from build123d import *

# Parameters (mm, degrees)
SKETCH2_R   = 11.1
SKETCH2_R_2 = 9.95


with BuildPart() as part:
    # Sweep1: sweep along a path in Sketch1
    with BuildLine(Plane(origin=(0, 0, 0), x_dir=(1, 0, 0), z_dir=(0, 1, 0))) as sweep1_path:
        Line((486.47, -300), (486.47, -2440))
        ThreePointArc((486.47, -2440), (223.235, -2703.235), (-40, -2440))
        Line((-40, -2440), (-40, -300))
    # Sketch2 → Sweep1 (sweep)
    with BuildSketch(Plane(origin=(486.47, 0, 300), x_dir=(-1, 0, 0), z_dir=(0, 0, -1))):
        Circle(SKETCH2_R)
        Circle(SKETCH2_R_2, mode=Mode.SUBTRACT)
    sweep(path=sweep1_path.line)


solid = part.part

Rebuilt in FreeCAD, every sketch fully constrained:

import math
import FreeCAD as App
import Part
import Sketcher

V = App.Vector
Q = App.Units.Quantity

doc = App.newDocument("Part")
params = doc.addObject("Spreadsheet::Sheet", "Params")
for row, (alias, value) in enumerate([
    ("sketch1_diameter", "22.2 mm"),
    ("sketch1_diameter2", "19.9 mm"),
    ("sketch2_height", "2140 mm"),
], start=1):
    params.set(f"A{row}", alias)
    params.set(f"B{row}", "=" + value)
    params.setAlias(f"B{row}", alias)

body = doc.addObject("PartDesign::Body", "Body")

# Sketch on XY plane
sketch1 = doc.addObject("Sketcher::SketchObject", "Sketch")
body.addObject(sketch1)
sketch1.AttachmentSupport = (doc.XY_Plane, [""])
sketch1.MapMode = "FlatFace"
sketch1.AttachmentOffset = App.Placement(V(0, 0, 300), App.Rotation())
sketch1.addGeometry([
    Part.Circle(V(486.47, 0, 0), V(0, 0, 1), 11.1),
    Part.Circle(V(486.47, 0, 0), V(0, 0, 1), 9.95),
], False)
sketch1.addConstraint([
    Sketcher.Constraint("Coincident", 1, 3, 0, 3),
    Sketcher.Constraint("PointOnObject", 0, 3, -1),
    Sketcher.Constraint("Diameter", 0, Q("22.2 mm")),
    Sketcher.Constraint("Diameter", 1, Q("19.9 mm")),
    Sketcher.Constraint("DistanceX", -1, 1, 0, 3, Q("486.47 mm")),
])
sketch1.setExpression("Constraints[2]", "Params.sketch1_diameter")
sketch1.setExpression("Constraints[3]", "Params.sketch1_diameter2")

# Sketch on XZ plane
sketch2 = doc.addObject("Sketcher::SketchObject", "Sketch001")
body.addObject(sketch2)
sketch2.AttachmentSupport = (doc.XZ_Plane, [""])
sketch2.MapMode = "FlatFace"
sketch2.addGeometry([
    Part.LineSegment(V(486.47, 300, 0), V(486.47, 2440, 0)),
    Part.ArcOfCircle(Part.Circle(V(223.235, 2440, 0), V(0, 0, 1), 263.235), math.radians(0), math.radians(180)),
    Part.LineSegment(V(-40, 2440, 0), V(-40, 300, 0)),
], False)
sketch2.addConstraint([
    Sketcher.Constraint("Tangent", 0, 2, 1, 1),
    Sketcher.Constraint("Tangent", 1, 2, 2, 1),
    Sketcher.Constraint("Vertical", 0),
    Sketcher.Constraint("Vertical", 2),
    Sketcher.Constraint("Horizontal", 0, 1, 2, 2),
    Sketcher.Constraint("DistanceY", 0, 1, 0, 2, Q("2140 mm")),
    Sketcher.Constraint("DistanceY", -1, 1, 1, 3, Q("2440 mm")),
    Sketcher.Constraint("DistanceX", 1, 2, -1, 1, Q("40 mm")),
    Sketcher.Constraint("Radius", 1, Q("263.235 mm")),
])
sketch2.setExpression("Constraints[5]", "Params.sketch2_height")
doc.recompute()

additivepipe = doc.addObject("PartDesign::AdditivePipe", "AdditivePipe")
body.addObject(additivepipe)
additivepipe.Profile = sketch1
additivepipe.Spine = (sketch2, ["Edge1", "Edge2", "Edge3"])

doc.recompute()
